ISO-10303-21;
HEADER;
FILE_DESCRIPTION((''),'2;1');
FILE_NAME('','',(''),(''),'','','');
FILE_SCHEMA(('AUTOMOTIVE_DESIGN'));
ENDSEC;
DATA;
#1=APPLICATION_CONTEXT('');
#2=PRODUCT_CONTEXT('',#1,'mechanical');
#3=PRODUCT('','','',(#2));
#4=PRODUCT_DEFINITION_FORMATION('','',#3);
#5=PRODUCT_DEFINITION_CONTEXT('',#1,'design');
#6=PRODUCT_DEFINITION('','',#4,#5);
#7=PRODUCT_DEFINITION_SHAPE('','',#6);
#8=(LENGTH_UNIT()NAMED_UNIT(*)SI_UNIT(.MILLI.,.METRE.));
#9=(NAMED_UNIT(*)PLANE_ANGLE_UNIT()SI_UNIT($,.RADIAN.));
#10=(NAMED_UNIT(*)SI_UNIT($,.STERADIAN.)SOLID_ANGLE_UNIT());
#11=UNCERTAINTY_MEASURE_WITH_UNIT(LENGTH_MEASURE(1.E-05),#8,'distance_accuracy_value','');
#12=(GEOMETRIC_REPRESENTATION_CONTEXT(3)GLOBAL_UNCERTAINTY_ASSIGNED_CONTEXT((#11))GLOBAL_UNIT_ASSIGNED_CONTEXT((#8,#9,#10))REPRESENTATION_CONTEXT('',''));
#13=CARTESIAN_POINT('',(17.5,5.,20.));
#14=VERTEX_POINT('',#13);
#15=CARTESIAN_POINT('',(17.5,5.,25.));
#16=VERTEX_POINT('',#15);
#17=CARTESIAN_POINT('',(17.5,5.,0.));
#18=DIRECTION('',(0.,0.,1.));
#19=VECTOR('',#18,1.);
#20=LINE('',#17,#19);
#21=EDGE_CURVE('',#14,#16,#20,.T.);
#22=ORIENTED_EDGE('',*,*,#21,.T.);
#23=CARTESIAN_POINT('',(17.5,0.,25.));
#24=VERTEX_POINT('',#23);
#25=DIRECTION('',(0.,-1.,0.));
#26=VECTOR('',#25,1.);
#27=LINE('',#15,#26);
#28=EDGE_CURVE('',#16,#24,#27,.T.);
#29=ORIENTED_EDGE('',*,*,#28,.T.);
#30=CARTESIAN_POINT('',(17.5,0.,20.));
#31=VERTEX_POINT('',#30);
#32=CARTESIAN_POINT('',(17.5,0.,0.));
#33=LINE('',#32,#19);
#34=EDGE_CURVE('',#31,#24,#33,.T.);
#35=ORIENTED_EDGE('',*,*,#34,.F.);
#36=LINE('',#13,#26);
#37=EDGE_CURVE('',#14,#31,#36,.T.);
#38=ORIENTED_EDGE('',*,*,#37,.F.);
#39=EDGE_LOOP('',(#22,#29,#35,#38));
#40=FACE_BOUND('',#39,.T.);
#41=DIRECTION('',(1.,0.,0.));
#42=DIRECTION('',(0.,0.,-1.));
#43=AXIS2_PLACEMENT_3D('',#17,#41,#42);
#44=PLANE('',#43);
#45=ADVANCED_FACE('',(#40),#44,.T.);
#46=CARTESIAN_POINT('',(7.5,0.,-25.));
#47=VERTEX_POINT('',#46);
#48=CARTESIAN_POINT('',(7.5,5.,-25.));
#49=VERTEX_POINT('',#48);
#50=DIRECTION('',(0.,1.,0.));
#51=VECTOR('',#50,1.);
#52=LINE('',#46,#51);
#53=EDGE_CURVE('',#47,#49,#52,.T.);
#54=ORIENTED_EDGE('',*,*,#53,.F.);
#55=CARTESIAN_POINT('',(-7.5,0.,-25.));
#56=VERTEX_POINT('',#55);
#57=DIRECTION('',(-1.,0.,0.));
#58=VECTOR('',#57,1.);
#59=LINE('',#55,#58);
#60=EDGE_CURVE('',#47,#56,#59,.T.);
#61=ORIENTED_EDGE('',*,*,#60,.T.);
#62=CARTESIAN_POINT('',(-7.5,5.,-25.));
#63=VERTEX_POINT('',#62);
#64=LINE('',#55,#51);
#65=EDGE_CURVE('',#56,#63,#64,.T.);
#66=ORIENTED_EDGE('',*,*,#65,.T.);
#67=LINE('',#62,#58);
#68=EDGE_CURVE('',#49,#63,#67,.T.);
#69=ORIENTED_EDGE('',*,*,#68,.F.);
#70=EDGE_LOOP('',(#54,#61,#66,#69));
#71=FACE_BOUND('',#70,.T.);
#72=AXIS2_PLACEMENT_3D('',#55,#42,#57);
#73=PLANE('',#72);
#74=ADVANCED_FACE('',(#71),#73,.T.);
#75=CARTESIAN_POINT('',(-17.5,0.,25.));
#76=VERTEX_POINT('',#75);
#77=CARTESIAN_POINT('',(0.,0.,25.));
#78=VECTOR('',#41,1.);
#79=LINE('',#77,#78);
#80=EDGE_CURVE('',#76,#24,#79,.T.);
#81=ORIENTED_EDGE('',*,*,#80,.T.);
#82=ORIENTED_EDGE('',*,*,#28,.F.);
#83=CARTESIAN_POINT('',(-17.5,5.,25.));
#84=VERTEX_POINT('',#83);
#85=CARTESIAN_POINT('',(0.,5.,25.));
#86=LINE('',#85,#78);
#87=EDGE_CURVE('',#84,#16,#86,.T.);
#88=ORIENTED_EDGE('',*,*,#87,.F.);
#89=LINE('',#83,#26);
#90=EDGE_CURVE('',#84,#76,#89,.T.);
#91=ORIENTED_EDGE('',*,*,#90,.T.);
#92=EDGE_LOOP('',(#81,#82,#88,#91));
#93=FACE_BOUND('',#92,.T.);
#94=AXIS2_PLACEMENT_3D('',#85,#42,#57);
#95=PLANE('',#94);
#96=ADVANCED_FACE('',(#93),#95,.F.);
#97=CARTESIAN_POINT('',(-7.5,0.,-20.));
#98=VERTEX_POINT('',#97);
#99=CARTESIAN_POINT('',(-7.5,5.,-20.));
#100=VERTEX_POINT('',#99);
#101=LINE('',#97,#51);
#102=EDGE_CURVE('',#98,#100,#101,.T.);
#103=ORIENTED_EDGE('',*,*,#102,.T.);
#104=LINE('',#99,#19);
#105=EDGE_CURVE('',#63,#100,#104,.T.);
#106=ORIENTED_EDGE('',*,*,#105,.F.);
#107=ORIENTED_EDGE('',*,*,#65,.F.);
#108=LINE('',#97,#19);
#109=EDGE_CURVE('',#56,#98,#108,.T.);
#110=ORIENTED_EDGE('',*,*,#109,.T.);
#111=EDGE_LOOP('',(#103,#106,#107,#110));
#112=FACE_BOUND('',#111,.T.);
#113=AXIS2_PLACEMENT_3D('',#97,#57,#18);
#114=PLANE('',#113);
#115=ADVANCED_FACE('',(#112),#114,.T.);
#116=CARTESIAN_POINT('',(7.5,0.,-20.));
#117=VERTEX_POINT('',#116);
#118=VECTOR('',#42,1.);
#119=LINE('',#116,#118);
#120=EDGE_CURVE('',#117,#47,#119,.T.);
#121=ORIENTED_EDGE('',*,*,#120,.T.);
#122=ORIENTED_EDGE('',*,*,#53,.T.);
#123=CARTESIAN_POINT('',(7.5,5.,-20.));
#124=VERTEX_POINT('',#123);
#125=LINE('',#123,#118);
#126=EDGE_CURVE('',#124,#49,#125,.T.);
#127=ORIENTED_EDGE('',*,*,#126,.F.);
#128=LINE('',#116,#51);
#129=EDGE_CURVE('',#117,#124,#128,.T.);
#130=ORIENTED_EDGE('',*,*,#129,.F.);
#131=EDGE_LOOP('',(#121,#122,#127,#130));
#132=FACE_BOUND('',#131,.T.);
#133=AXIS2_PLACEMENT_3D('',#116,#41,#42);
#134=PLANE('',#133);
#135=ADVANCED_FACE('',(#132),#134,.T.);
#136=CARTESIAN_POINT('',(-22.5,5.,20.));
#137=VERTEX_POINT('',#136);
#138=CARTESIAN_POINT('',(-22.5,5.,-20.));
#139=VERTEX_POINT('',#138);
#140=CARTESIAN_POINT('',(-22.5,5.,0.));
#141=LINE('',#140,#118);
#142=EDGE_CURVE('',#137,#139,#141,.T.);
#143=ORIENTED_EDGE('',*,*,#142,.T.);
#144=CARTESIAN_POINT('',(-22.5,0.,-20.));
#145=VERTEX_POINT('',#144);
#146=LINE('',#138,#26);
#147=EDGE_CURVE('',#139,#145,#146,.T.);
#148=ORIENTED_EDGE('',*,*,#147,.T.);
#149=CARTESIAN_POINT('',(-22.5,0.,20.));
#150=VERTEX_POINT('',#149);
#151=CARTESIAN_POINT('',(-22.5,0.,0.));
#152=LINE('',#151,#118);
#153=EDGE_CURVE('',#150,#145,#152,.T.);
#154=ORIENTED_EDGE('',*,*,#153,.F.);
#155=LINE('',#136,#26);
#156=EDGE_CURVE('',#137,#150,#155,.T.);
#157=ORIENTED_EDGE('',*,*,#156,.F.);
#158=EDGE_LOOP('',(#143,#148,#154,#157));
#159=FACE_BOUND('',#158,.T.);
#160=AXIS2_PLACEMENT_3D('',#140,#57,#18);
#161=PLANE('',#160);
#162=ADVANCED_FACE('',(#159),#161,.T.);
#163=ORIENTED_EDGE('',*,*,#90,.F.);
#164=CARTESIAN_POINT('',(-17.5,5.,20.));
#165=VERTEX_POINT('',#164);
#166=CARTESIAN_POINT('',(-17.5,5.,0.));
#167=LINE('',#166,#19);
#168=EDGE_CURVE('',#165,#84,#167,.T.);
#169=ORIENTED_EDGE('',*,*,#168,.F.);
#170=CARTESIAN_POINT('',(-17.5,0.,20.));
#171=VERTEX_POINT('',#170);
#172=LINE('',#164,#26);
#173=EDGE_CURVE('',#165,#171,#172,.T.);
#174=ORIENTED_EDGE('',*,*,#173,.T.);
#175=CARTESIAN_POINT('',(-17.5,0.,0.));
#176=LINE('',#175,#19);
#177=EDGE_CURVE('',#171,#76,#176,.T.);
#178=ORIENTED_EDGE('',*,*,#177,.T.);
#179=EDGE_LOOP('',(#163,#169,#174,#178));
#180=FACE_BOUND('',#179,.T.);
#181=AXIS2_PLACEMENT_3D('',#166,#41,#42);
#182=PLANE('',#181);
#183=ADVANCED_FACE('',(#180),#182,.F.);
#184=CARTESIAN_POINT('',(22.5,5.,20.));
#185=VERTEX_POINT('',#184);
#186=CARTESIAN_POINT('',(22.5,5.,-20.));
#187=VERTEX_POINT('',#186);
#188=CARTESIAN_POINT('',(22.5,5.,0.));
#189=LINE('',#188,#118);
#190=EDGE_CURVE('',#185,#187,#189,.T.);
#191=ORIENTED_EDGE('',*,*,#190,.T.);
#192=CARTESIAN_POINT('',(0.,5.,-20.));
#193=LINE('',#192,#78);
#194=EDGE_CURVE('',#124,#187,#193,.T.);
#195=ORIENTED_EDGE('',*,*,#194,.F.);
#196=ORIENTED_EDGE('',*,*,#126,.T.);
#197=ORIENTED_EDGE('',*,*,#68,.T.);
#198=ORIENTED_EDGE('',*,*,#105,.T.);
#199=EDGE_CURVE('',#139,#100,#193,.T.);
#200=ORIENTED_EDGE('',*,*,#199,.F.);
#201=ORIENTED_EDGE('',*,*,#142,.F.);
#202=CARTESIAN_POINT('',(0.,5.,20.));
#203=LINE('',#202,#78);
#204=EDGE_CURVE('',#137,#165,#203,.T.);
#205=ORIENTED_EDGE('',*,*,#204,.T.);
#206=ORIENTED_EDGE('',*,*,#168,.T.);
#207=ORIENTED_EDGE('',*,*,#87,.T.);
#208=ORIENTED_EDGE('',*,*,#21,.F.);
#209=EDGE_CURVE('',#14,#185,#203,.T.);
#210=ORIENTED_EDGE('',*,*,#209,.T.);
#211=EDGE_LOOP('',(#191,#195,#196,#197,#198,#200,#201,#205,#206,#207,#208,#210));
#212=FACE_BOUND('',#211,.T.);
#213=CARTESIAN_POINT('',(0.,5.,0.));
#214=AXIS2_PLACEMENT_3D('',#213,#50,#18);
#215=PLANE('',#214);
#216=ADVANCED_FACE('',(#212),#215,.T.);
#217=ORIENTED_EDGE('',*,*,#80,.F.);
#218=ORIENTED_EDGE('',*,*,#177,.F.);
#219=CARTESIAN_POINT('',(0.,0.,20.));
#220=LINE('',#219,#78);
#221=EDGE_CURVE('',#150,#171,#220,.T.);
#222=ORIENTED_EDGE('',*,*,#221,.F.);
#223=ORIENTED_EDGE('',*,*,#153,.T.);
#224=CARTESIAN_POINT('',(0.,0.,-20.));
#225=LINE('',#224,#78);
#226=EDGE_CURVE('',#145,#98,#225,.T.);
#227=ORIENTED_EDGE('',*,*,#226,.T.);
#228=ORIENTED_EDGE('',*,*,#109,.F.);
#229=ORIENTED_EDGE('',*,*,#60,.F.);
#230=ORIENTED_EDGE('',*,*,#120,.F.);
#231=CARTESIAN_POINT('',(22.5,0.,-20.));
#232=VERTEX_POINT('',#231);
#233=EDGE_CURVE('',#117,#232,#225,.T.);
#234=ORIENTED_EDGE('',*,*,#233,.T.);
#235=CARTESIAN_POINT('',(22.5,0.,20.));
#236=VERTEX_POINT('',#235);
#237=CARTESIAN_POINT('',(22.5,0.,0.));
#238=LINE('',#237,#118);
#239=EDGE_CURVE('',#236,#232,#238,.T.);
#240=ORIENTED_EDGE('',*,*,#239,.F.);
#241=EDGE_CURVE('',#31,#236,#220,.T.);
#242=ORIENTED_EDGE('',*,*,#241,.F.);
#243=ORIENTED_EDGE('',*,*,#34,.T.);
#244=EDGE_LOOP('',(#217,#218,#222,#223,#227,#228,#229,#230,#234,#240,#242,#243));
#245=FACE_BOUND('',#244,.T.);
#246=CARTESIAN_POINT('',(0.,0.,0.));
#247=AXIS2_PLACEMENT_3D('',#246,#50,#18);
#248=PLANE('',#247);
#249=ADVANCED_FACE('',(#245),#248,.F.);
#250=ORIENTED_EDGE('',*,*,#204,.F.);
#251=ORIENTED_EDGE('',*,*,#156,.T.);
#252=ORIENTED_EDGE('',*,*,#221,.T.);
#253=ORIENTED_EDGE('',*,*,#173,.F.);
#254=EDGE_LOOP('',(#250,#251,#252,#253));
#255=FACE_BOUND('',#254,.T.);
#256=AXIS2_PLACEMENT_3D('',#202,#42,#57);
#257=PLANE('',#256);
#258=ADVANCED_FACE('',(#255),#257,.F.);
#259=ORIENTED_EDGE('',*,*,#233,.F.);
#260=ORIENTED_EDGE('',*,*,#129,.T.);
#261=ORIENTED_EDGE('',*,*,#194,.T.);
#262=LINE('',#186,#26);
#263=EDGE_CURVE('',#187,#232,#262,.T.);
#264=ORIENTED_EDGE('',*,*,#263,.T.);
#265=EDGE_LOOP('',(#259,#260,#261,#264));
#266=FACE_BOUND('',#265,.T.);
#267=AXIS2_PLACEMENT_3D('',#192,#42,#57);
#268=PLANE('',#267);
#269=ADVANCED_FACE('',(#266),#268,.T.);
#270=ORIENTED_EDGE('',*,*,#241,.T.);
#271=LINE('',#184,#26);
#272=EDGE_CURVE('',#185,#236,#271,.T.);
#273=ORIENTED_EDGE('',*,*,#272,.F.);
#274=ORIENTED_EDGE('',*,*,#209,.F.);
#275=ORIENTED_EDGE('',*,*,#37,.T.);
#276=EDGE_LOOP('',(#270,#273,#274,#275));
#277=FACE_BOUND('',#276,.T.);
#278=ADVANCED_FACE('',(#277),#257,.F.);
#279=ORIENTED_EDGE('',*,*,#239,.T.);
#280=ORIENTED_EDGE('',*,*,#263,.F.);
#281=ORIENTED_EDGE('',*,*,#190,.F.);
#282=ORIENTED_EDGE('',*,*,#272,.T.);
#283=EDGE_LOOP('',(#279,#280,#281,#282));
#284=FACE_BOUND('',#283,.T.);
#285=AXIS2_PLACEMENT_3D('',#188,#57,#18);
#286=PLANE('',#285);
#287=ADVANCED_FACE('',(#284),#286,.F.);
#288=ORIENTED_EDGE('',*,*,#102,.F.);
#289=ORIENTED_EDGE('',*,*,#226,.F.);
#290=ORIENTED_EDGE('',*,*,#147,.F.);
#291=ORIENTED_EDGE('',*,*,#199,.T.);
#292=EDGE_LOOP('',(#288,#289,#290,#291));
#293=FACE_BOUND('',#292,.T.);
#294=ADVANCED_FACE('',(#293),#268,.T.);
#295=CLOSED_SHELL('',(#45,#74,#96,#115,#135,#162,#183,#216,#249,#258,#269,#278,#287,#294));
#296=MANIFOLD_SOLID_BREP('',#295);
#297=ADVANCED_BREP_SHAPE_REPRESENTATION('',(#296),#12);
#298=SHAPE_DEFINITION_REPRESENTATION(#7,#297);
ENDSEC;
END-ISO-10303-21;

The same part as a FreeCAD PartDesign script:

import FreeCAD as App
import Part
import Sketcher
from FreeCAD import Vector
Q = App.Units.Quantity

doc = App.newDocument("Part")
params = doc.addObject("Spreadsheet::Sheet", "Params")
for row, (alias, value) in enumerate([
    ("sketch1_width", "5 mm"),
    ("sketch1_width2", "35 mm"),
    ("sketch1_height", "40 mm"),
    ("pad1_length", "5 mm"),
    ("sketch2_width", "15 mm"),
    ("sketch2_height", "5 mm"),
    ("pad2_length", "5 mm"),
], start=1):
    params.set(f"A{row}", alias)
    params.set(f"B{row}", "=" + value)
    params.setAlias(f"B{row}", alias)

body = doc.addObject("PartDesign::Body", "Body")

# Sketch on XZ plane
sketch1 = doc.addObject("Sketcher::SketchObject", "Sketch")
body.addObject(sketch1)
sketch1.AttachmentSupport = (doc.XZ_Plane, [""])
sketch1.MapMode = "FlatFace"
sketch1.addGeometry(Part.LineSegment(Vector(-22.5, -20, 0), Vector(-22.5, 20, 0)), False)
sketch1.addGeometry(Part.LineSegment(Vector(-22.5, 20, 0), Vector(-17.5, 20, 0)), False)
sketch1.addGeometry(Part.LineSegment(Vector(-17.5, 20, 0), Vector(-17.5, 25, 0)), False)
sketch1.addGeometry(Part.LineSegment(Vector(-17.5, 25, 0), Vector(17.5, 25, 0)), False)
sketch1.addGeometry(Part.LineSegment(Vector(17.5, 25, 0), Vector(17.5, 20, 0)), False)
sketch1.addGeometry(Part.LineSegment(Vector(17.5, 20, 0), Vector(22.5, 20, 0)), False)
sketch1.addGeometry(Part.LineSegment(Vector(22.5, 20, 0), Vector(22.5, -20, 0)), False)
sketch1.addGeometry(Part.LineSegment(Vector(22.5, -20, 0), Vector(-22.5, -20, 0)), False)
sketch1.addConstraint(Sketcher.Constraint("Coincident", 0, 2, 1, 1))
sketch1.addConstraint(Sketcher.Constraint("Coincident", 1, 2, 2, 1))
sketch1.addConstraint(Sketcher.Constraint("Coincident", 2, 2, 3, 1))
sketch1.addConstraint(Sketcher.Constraint("Coincident", 3, 2, 4, 1))
sketch1.addConstraint(Sketcher.Constraint("Coincident", 4, 2, 5, 1))
sketch1.addConstraint(Sketcher.Constraint("Coincident", 5, 2, 6, 1))
sketch1.addConstraint(Sketcher.Constraint("Coincident", 6, 2, 7, 1))
sketch1.addConstraint(Sketcher.Constraint("Coincident", 7, 2, 0, 1))
sketch1.addConstraint(Sketcher.Constraint("Vertical", 0))
sketch1.addConstraint(Sketcher.Constraint("Horizontal", 1))
sketch1.addConstraint(Sketcher.Constraint("Vertical", 2))
sketch1.addConstraint(Sketcher.Constraint("Horizontal", 3))
sketch1.addConstraint(Sketcher.Constraint("Vertical", 4))
sketch1.addConstraint(Sketcher.Constraint("Horizontal", 5))
sketch1.addConstraint(Sketcher.Constraint("Vertical", 6))
sketch1.addConstraint(Sketcher.Constraint("Horizontal", 7))
sketch1.addConstraint(Sketcher.Constraint("Symmetric", 0, 2, 6, 2, -1, 1))
sketch1.addConstraint(Sketcher.Constraint("Symmetric", 1, 2, 4, 2, -2))
sketch1.addConstraint(Sketcher.Constraint("Equal", 5, 2))
sketch1.addConstraint(Sketcher.Constraint("DistanceX", 1, 1, 1, 2, Q("5 mm")))
sketch1.addConstraint(Sketcher.Constraint("DistanceX", 3, 1, 3, 2, Q("35 mm")))
sketch1.addConstraint(Sketcher.Constraint("DistanceY", 0, 1, 0, 2, Q("40 mm")))
sketch1.setExpression("Constraints[19]", "Params.sketch1_width")
sketch1.setExpression("Constraints[20]", "Params.sketch1_width2")
sketch1.setExpression("Constraints[21]", "Params.sketch1_height")
pad1 = doc.addObject("PartDesign::Pad", "Pad")
body.addObject(pad1)
pad1.Profile = sketch1
pad1.setExpression("Length", "Params.pad1_length")
pad1.Reversed = True

# Sketch on XZ plane
sketch2 = doc.addObject("Sketcher::SketchObject", "Sketch001")
body.addObject(sketch2)
sketch2.AttachmentSupport = (doc.XZ_Plane, [""])
sketch2.MapMode = "FlatFace"
sketch2.AttachmentOffset = App.Placement(Vector(0, 0, -5), App.Rotation())
sketch2.addGeometry(Part.LineSegment(Vector(-7.5, -25, 0), Vector(-7.5, -20, 0)), False)
sketch2.addGeometry(Part.LineSegment(Vector(-7.5, -20, 0), Vector(7.5, -20, 0)), False)
sketch2.addGeometry(Part.LineSegment(Vector(7.5, -20, 0), Vector(7.5, -25, 0)), False)
sketch2.addGeometry(Part.LineSegment(Vector(7.5, -25, 0), Vector(-7.5, -25, 0)), False)
sketch2.addConstraint(Sketcher.Constraint("Coincident", 0, 2, 1, 1))
sketch2.addConstraint(Sketcher.Constraint("Coincident", 1, 2, 2, 1))
sketch2.addConstraint(Sketcher.Constraint("Coincident", 2, 2, 3, 1))
sketch2.addConstraint(Sketcher.Constraint("Coincident", 3, 2, 0, 1))
sketch2.addConstraint(Sketcher.Constraint("Vertical", 0))
sketch2.addConstraint(Sketcher.Constraint("Horizontal", 1))
sketch2.addConstraint(Sketcher.Constraint("Vertical", 2))
sketch2.addConstraint(Sketcher.Constraint("Horizontal", 3))
sketch2.addConstraint(Sketcher.Constraint("DistanceX", 1, 1, 1, 2, Q("15 mm")))
sketch2.addConstraint(Sketcher.Constraint("DistanceY", 0, 1, 0, 2, Q("5 mm")))
sketch2.addConstraint(Sketcher.Constraint("DistanceY", 0, 2, -1, 1, Q("20 mm")))
sketch2.addConstraint(Sketcher.Constraint("DistanceX", 0, 2, -1, 1, Q("7.5 mm")))
sketch2.setExpression("Constraints[8]", "Params.sketch2_width")
sketch2.setExpression("Constraints[9]", "Params.sketch2_height")
pad2 = doc.addObject("PartDesign::Pad", "Pad001")
body.addObject(pad2)
pad2.Profile = sketch2
pad2.setExpression("Length", "Params.pad2_length")

doc.recompute()
